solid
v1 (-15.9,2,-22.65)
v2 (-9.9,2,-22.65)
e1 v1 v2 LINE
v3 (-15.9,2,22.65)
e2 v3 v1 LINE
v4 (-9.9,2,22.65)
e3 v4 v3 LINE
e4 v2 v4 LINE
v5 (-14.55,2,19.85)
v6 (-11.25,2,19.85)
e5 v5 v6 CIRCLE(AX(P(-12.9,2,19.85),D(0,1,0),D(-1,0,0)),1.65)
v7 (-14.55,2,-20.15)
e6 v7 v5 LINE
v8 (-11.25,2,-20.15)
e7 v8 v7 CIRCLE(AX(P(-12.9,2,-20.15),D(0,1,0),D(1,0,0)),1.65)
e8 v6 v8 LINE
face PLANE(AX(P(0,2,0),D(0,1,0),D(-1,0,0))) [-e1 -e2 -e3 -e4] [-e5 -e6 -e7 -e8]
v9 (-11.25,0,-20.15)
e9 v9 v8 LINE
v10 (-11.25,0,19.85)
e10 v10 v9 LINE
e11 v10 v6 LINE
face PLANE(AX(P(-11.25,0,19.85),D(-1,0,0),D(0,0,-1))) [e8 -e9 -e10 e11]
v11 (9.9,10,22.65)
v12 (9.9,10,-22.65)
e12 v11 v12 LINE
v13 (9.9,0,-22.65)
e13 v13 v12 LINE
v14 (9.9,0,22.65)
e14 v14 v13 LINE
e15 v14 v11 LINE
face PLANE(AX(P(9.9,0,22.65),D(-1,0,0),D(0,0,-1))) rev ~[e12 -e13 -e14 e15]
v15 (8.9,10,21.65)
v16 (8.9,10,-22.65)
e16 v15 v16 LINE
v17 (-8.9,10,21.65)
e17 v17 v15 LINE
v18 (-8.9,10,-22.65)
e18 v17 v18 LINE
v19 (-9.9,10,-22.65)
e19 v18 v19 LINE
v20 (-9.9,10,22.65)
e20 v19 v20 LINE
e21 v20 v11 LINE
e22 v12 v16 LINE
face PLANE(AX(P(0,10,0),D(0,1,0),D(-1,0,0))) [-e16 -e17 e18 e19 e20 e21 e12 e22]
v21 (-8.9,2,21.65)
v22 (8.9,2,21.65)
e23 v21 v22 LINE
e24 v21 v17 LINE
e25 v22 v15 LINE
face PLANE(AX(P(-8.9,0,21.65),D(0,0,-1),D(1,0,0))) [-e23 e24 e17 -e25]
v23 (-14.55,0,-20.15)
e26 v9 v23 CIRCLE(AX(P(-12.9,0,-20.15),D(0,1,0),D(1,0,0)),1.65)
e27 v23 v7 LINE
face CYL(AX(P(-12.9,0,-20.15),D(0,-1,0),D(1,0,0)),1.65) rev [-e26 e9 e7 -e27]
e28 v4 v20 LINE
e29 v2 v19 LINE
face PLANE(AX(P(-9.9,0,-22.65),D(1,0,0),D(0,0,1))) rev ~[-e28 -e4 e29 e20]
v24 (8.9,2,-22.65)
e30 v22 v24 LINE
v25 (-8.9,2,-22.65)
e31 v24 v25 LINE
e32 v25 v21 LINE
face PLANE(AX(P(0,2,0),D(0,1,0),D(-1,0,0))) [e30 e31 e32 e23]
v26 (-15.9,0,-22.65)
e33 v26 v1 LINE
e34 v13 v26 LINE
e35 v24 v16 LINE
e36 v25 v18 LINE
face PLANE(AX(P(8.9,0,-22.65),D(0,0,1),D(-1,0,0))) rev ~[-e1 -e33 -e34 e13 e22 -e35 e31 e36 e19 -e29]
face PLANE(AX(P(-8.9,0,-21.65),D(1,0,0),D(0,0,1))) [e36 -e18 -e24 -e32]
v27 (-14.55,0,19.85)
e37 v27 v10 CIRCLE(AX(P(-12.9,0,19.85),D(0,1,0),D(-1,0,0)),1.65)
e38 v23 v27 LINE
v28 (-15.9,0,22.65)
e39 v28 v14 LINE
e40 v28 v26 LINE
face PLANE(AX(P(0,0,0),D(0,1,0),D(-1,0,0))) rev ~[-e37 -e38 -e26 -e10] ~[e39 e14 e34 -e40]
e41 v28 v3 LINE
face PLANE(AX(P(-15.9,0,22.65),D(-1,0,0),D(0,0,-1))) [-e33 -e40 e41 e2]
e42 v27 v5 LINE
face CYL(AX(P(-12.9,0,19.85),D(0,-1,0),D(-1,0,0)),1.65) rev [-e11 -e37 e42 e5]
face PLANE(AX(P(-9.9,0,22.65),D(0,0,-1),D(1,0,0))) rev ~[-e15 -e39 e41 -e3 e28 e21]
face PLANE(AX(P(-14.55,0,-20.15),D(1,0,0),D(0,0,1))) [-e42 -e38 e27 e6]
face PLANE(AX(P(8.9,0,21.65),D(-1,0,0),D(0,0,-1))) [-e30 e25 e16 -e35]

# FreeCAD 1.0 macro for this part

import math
import FreeCAD as App
import Part
import Sketcher
from FreeCAD import Vector


def add_polygon(sketch, points):
    """Adds a closed chain of lines whose ends are joined by coincident constraints."""
    first, n = sketch.GeometryCount, len(points)
    for a, b in zip(points, points[1:] + points[:1]):
        sketch.addGeometry(Part.LineSegment(App.Vector(*a, 0), App.Vector(*b, 0)), False)
    for i in range(n):
        sketch.addConstraint(Sketcher.Constraint("Coincident", first + i, 2, first + (i + 1) % n, 1))

doc = App.newDocument("Part")
body = doc.addObject("PartDesign::Body", "Body")
body.AllowCompound = True

# Sketch on XZ plane
sketch1 = body.newObject("Sketcher::SketchObject", "Sketch")
sketch1.AttachmentSupport = (doc.getObject("XZ_Plane"), [""])
sketch1.MapMode = "FlatFace"
add_polygon(sketch1, [(-8.9, 21.6), (8.9, 21.6), (8.9, -22.6), (-8.9, -22.6)])  # lines 0-3
add_polygon(sketch1, [(-9.9, 22.6), (-9.9, -22.6), (-15.9, -22.6), (-15.9, 22.6)])  # lines 4-7
sketch1.addGeometry(Part.LineSegment(Vector(-11.2, -20.1, 0), Vector(-11.2, 19.9, 0)), False)  # 8
sketch1.addGeometry(Part.ArcOfCircle(Part.Circle(Vector(-12.9, 19.9, 0), Vector(0, 0, 1), 1.7), math.radians(0), math.radians(180)), False)  # 9
sketch1.addGeometry(Part.LineSegment(Vector(-14.6, 19.9, 0), Vector(-14.6, -20.1, 0)), False)  # 10
sketch1.addGeometry(Part.ArcOfCircle(Part.Circle(Vector(-12.9, -20.1, 0), Vector(0, 0, 1), 1.7), math.radians(180), math.radians(360)), False)  # 11
sketch1.addConstraint(Sketcher.Constraint("Tangent", 8, 2, 9, 1))
sketch1.addConstraint(Sketcher.Constraint("Tangent", 9, 2, 10, 1))
sketch1.addConstraint(Sketcher.Constraint("Tangent", 10, 2, 11, 1))
sketch1.addConstraint(Sketcher.Constraint("Tangent", 11, 2, 8, 1))
sketch1.addConstraint(Sketcher.Constraint("Horizontal", 0))
sketch1.addConstraint(Sketcher.Constraint("Vertical", 1))
sketch1.addConstraint(Sketcher.Constraint("Horizontal", 2))
sketch1.addConstraint(Sketcher.Constraint("Vertical", 3))
sketch1.addConstraint(Sketcher.Constraint("Vertical", 4))
sketch1.addConstraint(Sketcher.Constraint("Horizontal", 5))
sketch1.addConstraint(Sketcher.Constraint("Vertical", 6))
sketch1.addConstraint(Sketcher.Constraint("Horizontal", 7))
sketch1.addConstraint(Sketcher.Constraint("Vertical", 8))
sketch1.addConstraint(Sketcher.Constraint("Vertical", 10))
sketch1.addConstraint(Sketcher.Constraint("Horizontal", 2, 2, 4, 2))
sketch1.addConstraint(Sketcher.Constraint("DistanceX", 5, 2, 5, 1, 6.0))
sketch1.addConstraint(Sketcher.Constraint("DistanceY", 8, 1, 8, 2, 40.0))
sketch1.addConstraint(Sketcher.Constraint("Radius", 9, 1.65))
sketch1.addConstraint(Sketcher.Constraint("DistanceX", 0, 1, 0, 2, 17.8))
sketch1.addConstraint(Sketcher.Constraint("DistanceY", 4, 2, 4, 1, 45.3))
sketch1.addConstraint(Sketcher.Constraint("DistanceY", 1, 2, 11, 3, 2.5))
sketch1.addConstraint(Sketcher.Constraint("DistanceY", 1, 2, 1, 1, 44.3))
sketch1.addConstraint(Sketcher.Constraint("DistanceX", 11, 3, 2, 2, 4.0))
sketch1.addConstraint(Sketcher.Constraint("DistanceX", 4, 2, 2, 2, 1.0))
sketch1.addConstraint(Sketcher.Constraint("DistanceX", 9, 3, -1, 1, 12.9))
sketch1.addConstraint(Sketcher.Constraint("DistanceY", -1, 1, 9, 3, 19.85))
pad1 = body.newObject("PartDesign::Pad", "Pad")
pad1.Profile = sketch1
pad1.Length = 2
pad1.Reversed = True

# Sketch on XZ plane
sketch2 = body.newObject("Sketcher::SketchObject", "Sketch001")
sketch2.AttachmentSupport = (doc.getObject("XZ_Plane"), [""])
sketch2.MapMode = "FlatFace"
add_polygon(sketch2, [(8.9, 21.6), (-8.9, 21.6), (-8.9, -22.6), (-9.9, -22.6), (-9.9, 22.6), (9.9, 22.6), (9.9, -22.6), (8.9, -22.6)])  # lines 0-7
sketch2.addConstraint(Sketcher.Constraint("Horizontal", 0))
sketch2.addConstraint(Sketcher.Constraint("Vertical", 1))
sketch2.addConstraint(Sketcher.Constraint("Horizontal", 2))
sketch2.addConstraint(Sketcher.Constraint("Vertical", 3))
sketch2.addConstraint(Sketcher.Constraint("Horizontal", 4))
sketch2.addConstraint(Sketcher.Constraint("Vertical", 5))
sketch2.addConstraint(Sketcher.Constraint("Horizontal", 6))
sketch2.addConstraint(Sketcher.Constraint("Vertical", 7))
sketch2.addConstraint(Sketcher.Constraint("Symmetric", 2, 2, 4, 2, -1, 1))
sketch2.addConstraint(Sketcher.Constraint("Symmetric", 1, 2, 6, 2, -2))
sketch2.addConstraint(Sketcher.Constraint("DistanceX", 0, 2, 0, 1, 17.8))
sketch2.addConstraint(Sketcher.Constraint("DistanceX", 4, 1, 4, 2, 19.8))
sketch2.addConstraint(Sketcher.Constraint("DistanceY", 3, 1, 3, 2, 45.3))
sketch2.addConstraint(Sketcher.Constraint("DistanceY", 1, 2, 1, 1, 44.3))
pad2 = body.newObject("PartDesign::Pad", "Pad001")
pad2.Profile = sketch2
pad2.Length = 10
pad2.Reversed = True

doc.recompute()
